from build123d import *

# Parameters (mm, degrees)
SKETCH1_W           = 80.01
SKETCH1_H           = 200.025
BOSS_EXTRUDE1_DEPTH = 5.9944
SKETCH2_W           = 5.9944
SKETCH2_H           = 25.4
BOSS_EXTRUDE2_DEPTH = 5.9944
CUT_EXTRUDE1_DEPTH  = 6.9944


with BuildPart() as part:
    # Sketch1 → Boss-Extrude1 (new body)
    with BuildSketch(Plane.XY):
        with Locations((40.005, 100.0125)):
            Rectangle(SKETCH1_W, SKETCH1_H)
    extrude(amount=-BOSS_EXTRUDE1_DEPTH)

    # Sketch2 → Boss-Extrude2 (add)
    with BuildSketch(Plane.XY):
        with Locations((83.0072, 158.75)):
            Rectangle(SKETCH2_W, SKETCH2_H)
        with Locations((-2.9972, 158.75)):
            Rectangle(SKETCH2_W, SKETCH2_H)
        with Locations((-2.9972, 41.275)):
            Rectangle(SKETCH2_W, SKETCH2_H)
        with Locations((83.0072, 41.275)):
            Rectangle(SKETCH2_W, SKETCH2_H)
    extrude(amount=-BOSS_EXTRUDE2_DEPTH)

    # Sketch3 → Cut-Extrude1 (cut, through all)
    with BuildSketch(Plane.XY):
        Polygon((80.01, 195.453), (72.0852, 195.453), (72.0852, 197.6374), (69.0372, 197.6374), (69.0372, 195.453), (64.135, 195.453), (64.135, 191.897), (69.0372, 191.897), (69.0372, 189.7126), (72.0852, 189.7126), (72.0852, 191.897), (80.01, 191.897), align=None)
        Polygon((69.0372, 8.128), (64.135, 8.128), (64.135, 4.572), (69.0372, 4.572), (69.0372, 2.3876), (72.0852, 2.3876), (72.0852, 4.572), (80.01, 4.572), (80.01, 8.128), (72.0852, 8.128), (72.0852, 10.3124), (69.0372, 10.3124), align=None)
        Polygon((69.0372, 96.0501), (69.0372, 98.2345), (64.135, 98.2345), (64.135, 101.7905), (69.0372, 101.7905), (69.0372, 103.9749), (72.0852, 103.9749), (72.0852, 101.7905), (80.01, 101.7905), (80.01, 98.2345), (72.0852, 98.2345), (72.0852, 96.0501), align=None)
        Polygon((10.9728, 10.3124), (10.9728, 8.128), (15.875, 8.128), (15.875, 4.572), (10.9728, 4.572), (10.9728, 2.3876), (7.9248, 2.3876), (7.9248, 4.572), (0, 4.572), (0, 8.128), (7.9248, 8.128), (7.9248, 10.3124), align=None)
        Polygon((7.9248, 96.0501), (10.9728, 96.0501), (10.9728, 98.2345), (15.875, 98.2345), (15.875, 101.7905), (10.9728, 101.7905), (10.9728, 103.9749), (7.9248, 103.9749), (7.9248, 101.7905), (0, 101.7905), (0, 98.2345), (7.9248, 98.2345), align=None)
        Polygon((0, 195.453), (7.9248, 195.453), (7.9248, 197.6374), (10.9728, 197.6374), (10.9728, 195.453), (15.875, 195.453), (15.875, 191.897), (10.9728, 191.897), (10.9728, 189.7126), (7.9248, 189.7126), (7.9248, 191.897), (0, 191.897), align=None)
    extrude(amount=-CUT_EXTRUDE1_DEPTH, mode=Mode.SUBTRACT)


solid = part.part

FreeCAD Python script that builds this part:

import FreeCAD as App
import Part
import Sketcher

V = App.Vector
Q = App.Units.Quantity


def add_polygon(sketch, points):
    """Adds a closed chain of lines whose ends are joined by coincident constraints."""
    first, n = sketch.GeometryCount, len(points)
    for a, b in zip(points, points[1:] + points[:1]):
        sketch.addGeometry(Part.LineSegment(App.Vector(*a, 0), App.Vector(*b, 0)), False)
    for i in range(n):
        sketch.addConstraint(Sketcher.Constraint("Coincident", first + i, 2, first + (i + 1) % n, 1))

doc = App.newDocument("Part")
body = doc.addObject("PartDesign::Body", "Body")

# Sketch on XY plane
sketch1 = doc.addObject("Sketcher::SketchObject", "Sketch")
body.addObject(sketch1)
sketch1.AttachmentSupport = (doc.XY_Plane, [""])
sketch1.MapMode = "FlatFace"
add_polygon(sketch1, [(0, 200), (0, 0), (80, 0), (80, 200)])  # lines 0-3
sketch1.addConstraint(Sketcher.Constraint("Vertical", 0))
sketch1.addConstraint(Sketcher.Constraint("Horizontal", 1))
sketch1.addConstraint(Sketcher.Constraint("Vertical", 2))
sketch1.addConstraint(Sketcher.Constraint("Horizontal", 3))
sketch1.addConstraint(Sketcher.Constraint("Coincident", 0, 2, -1, 1))
sketch1.addConstraint(Sketcher.Constraint("DistanceX", 1, 1, 1, 2, Q("3.15 in")))
sketch1.addConstraint(Sketcher.Constraint("DistanceY", 0, 2, 0, 1, Q("7.875 in")))
pad1 = doc.addObject("PartDesign::Pad", "Pad")
body.addObject(pad1)
pad1.Profile = sketch1
pad1.Length = Q("0.236 in")
pad1.Reversed = True

# Sketch on XY plane
sketch2 = doc.addObject("Sketcher::SketchObject", "Sketch001")
body.addObject(sketch2)
sketch2.AttachmentSupport = (doc.XY_Plane, [""])
sketch2.MapMode = "FlatFace"
add_polygon(sketch2, [(80, 171), (80, 146), (86, 146), (86, 171)])  # lines 0-3
add_polygon(sketch2, [(-6, 171), (-6, 146), (0, 146), (0, 171)])  # lines 4-7
add_polygon(sketch2, [(-6, 54), (-6, 29), (0, 29), (0, 54)])  # lines 8-11
add_polygon(sketch2, [(80, 54), (80, 29), (86, 29), (86, 54)])  # lines 12-15
sketch2.addConstraint(Sketcher.Constraint("Vertical", 0))
sketch2.addConstraint(Sketcher.Constraint("Horizontal", 1))
sketch2.addConstraint(Sketcher.Constraint("Vertical", 2))
sketch2.addConstraint(Sketcher.Constraint("Horizontal", 3))
sketch2.addConstraint(Sketcher.Constraint("Vertical", 4))
sketch2.addConstraint(Sketcher.Constraint("Horizontal", 5))
sketch2.addConstraint(Sketcher.Constraint("Vertical", 6))
sketch2.addConstraint(Sketcher.Constraint("Horizontal", 7))
sketch2.addConstraint(Sketcher.Constraint("Vertical", 8))
sketch2.addConstraint(Sketcher.Constraint("Horizontal", 9))
sketch2.addConstraint(Sketcher.Constraint("Vertical", 10))
sketch2.addConstraint(Sketcher.Constraint("Horizontal", 11))
sketch2.addConstraint(Sketcher.Constraint("Vertical", 12))
sketch2.addConstraint(Sketcher.Constraint("Horizontal", 13))
sketch2.addConstraint(Sketcher.Constraint("Vertical", 14))
sketch2.addConstraint(Sketcher.Constraint("Horizontal", 15))
sketch2.addConstraint(Sketcher.Constraint("PointOnObject", 5, 2, -2))
sketch2.addConstraint(Sketcher.Constraint("PointOnObject", 9, 2, -2))
sketch2.addConstraint(Sketcher.Constraint("Horizontal", 1, 2, 4, 2))
sketch2.addConstraint(Sketcher.Constraint("Horizontal", 3, 2, 6, 2))
sketch2.addConstraint(Sketcher.Constraint("Horizontal", 9, 2, 12, 2))
sketch2.addConstraint(Sketcher.Constraint("Horizontal", 11, 2, 14, 2))
sketch2.addConstraint(Sketcher.Constraint("Vertical", 7, 2, 8, 2))
sketch2.addConstraint(Sketcher.Constraint("Vertical", 3, 2, 12, 2))
sketch2.addConstraint(Sketcher.Constraint("Vertical", 2, 2, 13, 2))
sketch2.addConstraint(Sketcher.Constraint("Equal", 3, 5))
sketch2.addConstraint(Sketcher.Constraint("Equal", 6, 8))
sketch2.addConstraint(Sketcher.Constraint("DistanceY", 0, 2, 0, 1, Q("1 in")))
sketch2.addConstraint(Sketcher.Constraint("DistanceX", 1, 1, 1, 2, Q("0.236 in")))
sketch2.addConstraint(Sketcher.Constraint("DistanceX", -1, 1, 0, 2, Q("3.15 in")))
sketch2.addConstraint(Sketcher.Constraint("DistanceY", -1, 1, 0, 2, Q("5.75 in")))
sketch2.addConstraint(Sketcher.Constraint("DistanceY", -1, 1, 8, 2, Q("1.125 in")))
pad2 = doc.addObject("PartDesign::Pad", "Pad001")
body.addObject(pad2)
pad2.Profile = sketch2
pad2.Length = Q("0.236 in")
pad2.Reversed = True

# Sketch on XY plane
sketch3 = doc.addObject("Sketcher::SketchObject", "Sketch002")
body.addObject(sketch3)
sketch3.AttachmentSupport = (doc.XY_Plane, [""])
sketch3.MapMode = "FlatFace"
add_polygon(sketch3, [(80, 195.5), (72.1, 195.5), (72.1, 197.6), (69, 197.6), (69, 195.5), (64.1, 195.5), (64.1, 191.9), (69, 191.9), (69, 189.7), (72.1, 189.7), (72.1, 191.9), (80, 191.9)])  # lines 0-11
add_polygon(sketch3, [(69, 8.1), (64.1, 8.1), (64.1, 4.6), (69, 4.6), (69, 2.4), (72.1, 2.4), (72.1, 4.6), (80, 4.6), (80, 8.1), (72.1, 8.1), (72.1, 10.3), (69, 10.3)])  # lines 12-23
add_polygon(sketch3, [(69, 98.2), (69, 96.1), (72.1, 96.1), (72.1, 98.2), (80, 98.2), (80, 101.8), (72.1, 101.8), (72.1, 104), (69, 104), (69, 101.8), (64.1, 101.8), (64.1, 98.2)])  # lines 24-35
add_polygon(sketch3, [(11, 8.1), (11, 10.3), (7.9, 10.3), (7.9, 8.1), (0, 8.1), (0, 4.6), (7.9, 4.6), (7.9, 2.4), (11, 2.4), (11, 4.6), (15.9, 4.6), (15.9, 8.1)])  # lines 36-47
add_polygon(sketch3, [(7.9, 96.1), (11, 96.1), (11, 98.2), (15.9, 98.2), (15.9, 101.8), (11, 101.8), (11, 104), (7.9, 104), (7.9, 101.8), (0, 101.8), (0, 98.2), (7.9, 98.2)])  # lines 48-59
add_polygon(sketch3, [(7.9, 195.5), (0, 195.5), (0, 191.9), (7.9, 191.9), (7.9, 189.7), (11, 189.7), (11, 191.9), (15.9, 191.9), (15.9, 195.5), (11, 195.5), (11, 197.6), (7.9, 197.6)])  # lines 60-71
sketch3.addConstraint(Sketcher.Constraint("Horizontal", 0))
sketch3.addConstraint(Sketcher.Constraint("Vertical", 1))
sketch3.addConstraint(Sketcher.Constraint("Horizontal", 2))
sketch3.addConstraint(Sketcher.Constraint("Vertical", 3))
sketch3.addConstraint(Sketcher.Constraint("Horizontal", 4))
sketch3.addConstraint(Sketcher.Constraint("Vertical", 5))
sketch3.addConstraint(Sketcher.Constraint("Horizontal", 6))
sketch3.addConstraint(Sketcher.Constraint("Vertical", 7))
sketch3.addConstraint(Sketcher.Constraint("Horizontal", 8))
sketch3.addConstraint(Sketcher.Constraint("Vertical", 9))
sketch3.addConstraint(Sketcher.Constraint("Horizontal", 10))
sketch3.addConstraint(Sketcher.Constraint("Vertical", 11))
sketch3.addConstraint(Sketcher.Constraint("Horizontal", 12))
sketch3.addConstraint(Sketcher.Constraint("Vertical", 13))
sketch3.addConstraint(Sketcher.Constraint("Horizontal", 14))
sketch3.addConstraint(Sketcher.Constraint("Vertical", 15))
sketch3.addConstraint(Sketcher.Constraint("Horizontal", 16))
sketch3.addConstraint(Sketcher.Constraint("Vertical", 17))
sketch3.addConstraint(Sketcher.Constraint("Horizontal", 18))
sketch3.addConstraint(Sketcher.Constraint("Vertical", 19))
sketch3.addConstraint(Sketcher.Constraint("Horizontal", 20))
sketch3.addConstraint(Sketcher.Constraint("Vertical", 21))
sketch3.addConstraint(Sketcher.Constraint("Horizontal", 22))
sketch3.addConstraint(Sketcher.Constraint("Vertical", 23))
sketch3.addConstraint(Sketcher.Constraint("Vertical", 24))
sketch3.addConstraint(Sketcher.Constraint("Horizontal", 25))
sketch3.addConstraint(Sketcher.Constraint("Vertical", 26))
sketch3.addConstraint(Sketcher.Constraint("Horizontal", 27))
sketch3.addConstraint(Sketcher.Constraint("Vertical", 28))
sketch3.addConstraint(Sketcher.Constraint("Horizontal", 29))
sketch3.addConstraint(Sketcher.Constraint("Vertical", 30))
sketch3.addConstraint(Sketcher.Constraint("Horizontal", 31))
sketch3.addConstraint(Sketcher.Constraint("Vertical", 32))
sketch3.addConstraint(Sketcher.Constraint("Horizontal", 33))
sketch3.addConstraint(Sketcher.Constraint("Vertical", 34))
sketch3.addConstraint(Sketcher.Constraint("Horizontal", 35))
sketch3.addConstraint(Sketcher.Constraint("Vertical", 36))
sketch3.addConstraint(Sketcher.Constraint("Horizontal", 37))
sketch3.addConstraint(Sketcher.Constraint("Vertical", 38))
sketch3.addConstraint(Sketcher.Constraint("Horizontal", 39))
sketch3.addConstraint(Sketcher.Constraint("Vertical", 40))
sketch3.addConstraint(Sketcher.Constraint("Horizontal", 41))
sketch3.addConstraint(Sketcher.Constraint("Vertical", 42))
sketch3.addConstraint(Sketcher.Constraint("Horizontal", 43))
sketch3.addConstraint(Sketcher.Constraint("Vertical", 44))
sketch3.addConstraint(Sketcher.Constraint("Horizontal", 45))
sketch3.addConstraint(Sketcher.Constraint("Vertical", 46))
sketch3.addConstraint(Sketcher.Constraint("Horizontal", 47))
sketch3.addConstraint(Sketcher.Constraint("Horizontal", 48))
sketch3.addConstraint(Sketcher.Constraint("Vertical", 49))
sketch3.addConstraint(Sketcher.Constraint("Horizontal", 50))
sketch3.addConstraint(Sketcher.Constraint("Vertical", 51))
sketch3.addConstraint(Sketcher.Constraint("Horizontal", 52))
sketch3.addConstraint(Sketcher.Constraint("Vertical", 53))
sketch3.addConstraint(Sketcher.Constraint("Horizontal", 54))
sketch3.addConstraint(Sketcher.Constraint("Vertical", 55))
sketch3.addConstraint(Sketcher.Constraint("Horizontal", 56))
sketch3.addConstraint(Sketcher.Constraint("Vertical", 57))
sketch3.addConstraint(Sketcher.Constraint("Horizontal", 58))
sketch3.addConstraint(Sketcher.Constraint("Vertical", 59))
sketch3.addConstraint(Sketcher.Constraint("Horizontal", 60))
sketch3.addConstraint(Sketcher.Constraint("Vertical", 61))
sketch3.addConstraint(Sketcher.Constraint("Horizontal", 62))
sketch3.addConstraint(Sketcher.Constraint("Vertical", 63))
sketch3.addConstraint(Sketcher.Constraint("Horizontal", 64))
sketch3.addConstraint(Sketcher.Constraint("Vertical", 65))
sketch3.addConstraint(Sketcher.Constraint("Horizontal", 66))
sketch3.addConstraint(Sketcher.Constraint("Vertical", 67))
sketch3.addConstraint(Sketcher.Constraint("Horizontal", 68))
sketch3.addConstraint(Sketcher.Constraint("Vertical", 69))
sketch3.addConstraint(Sketcher.Constraint("Horizontal", 70))
sketch3.addConstraint(Sketcher.Constraint("Vertical", 71))
sketch3.addConstraint(Sketcher.Constraint("PointOnObject", 39, 2, -2))
sketch3.addConstraint(Sketcher.Constraint("PointOnObject", 56, 2, -2))
sketch3.addConstraint(Sketcher.Constraint("PointOnObject", 60, 2, -2))
sketch3.addConstraint(Sketcher.Constraint("Horizontal", 0, 2, 3, 2))
sketch3.addConstraint(Sketcher.Constraint("Horizontal", 6, 2, 9, 2))
sketch3.addConstraint(Sketcher.Constraint("Horizontal", 14, 2, 17, 2))
sketch3.addConstraint(Sketcher.Constraint("Horizontal", 12, 2, 19, 2))
sketch3.addConstraint(Sketcher.Constraint("Horizontal", 29, 2, 32, 2))
sketch3.addConstraint(Sketcher.Constraint("Horizontal", 27, 2, 34, 2))
sketch3.addConstraint(Sketcher.Constraint("Horizontal", 22, 2, 36, 2))
sketch3.addConstraint(Sketcher.Constraint("Horizontal", 23, 2, 38, 2))
sketch3.addConstraint(Sketcher.Constraint("Horizontal", 18, 2, 40, 2))
sketch3.addConstraint(Sketcher.Constraint("Horizontal", 16, 2, 42, 2))
sketch3.addConstraint(Sketcher.Constraint("Horizontal", 41, 2, 44, 2))
sketch3.addConstraint(Sketcher.Constraint("Horizontal", 39, 2, 46, 2))
sketch3.addConstraint(Sketcher.Constraint("Horizontal", 25, 2, 48, 2))
sketch3.addConstraint(Sketcher.Constraint("Horizontal", 35, 2, 49, 2))
sketch3.addConstraint(Sketcher.Constraint("Horizontal", 33, 2, 51, 2))
sketch3.addConstraint(Sketcher.Constraint("Horizontal", 31, 2, 53, 2))
sketch3.addConstraint(Sketcher.Constraint("Horizontal", 52, 2, 55, 2))
sketch3.addConstraint(Sketcher.Constraint("Horizontal", 50, 2, 57, 2))
sketch3.addConstraint(Sketcher.Constraint("Horizontal", 11, 2, 60, 2))
sketch3.addConstraint(Sketcher.Constraint("Horizontal", 10, 2, 61, 2))
sketch3.addConstraint(Sketcher.Constraint("Horizontal", 8, 2, 63, 2))
sketch3.addConstraint(Sketcher.Constraint("Horizontal", 62, 2, 65, 2))
sketch3.addConstraint(Sketcher.Constraint("Horizontal", 60, 2, 67, 2))
sketch3.addConstraint(Sketcher.Constraint("Horizontal", 2, 2, 69, 2))
sketch3.addConstraint(Sketcher.Constraint("Vertical", 3, 2, 6, 2))
sketch3.addConstraint(Sketcher.Constraint("Vertical", 1, 2, 8, 2))
sketch3.addConstraint(Sketcher.Constraint("Vertical", 5, 2, 12, 2))
sketch3.addConstraint(Sketcher.Constraint("Vertical", 7, 2, 14, 2))
sketch3.addConstraint(Sketcher.Constraint("Vertical", 9, 2, 16, 2))
sketch3.addConstraint(Sketcher.Constraint("Vertical", 11, 2, 18, 2))
sketch3.addConstraint(Sketcher.Constraint("Vertical", 17, 2, 20, 2))
sketch3.addConstraint(Sketcher.Constraint("Vertical", 15, 2, 22, 2))
sketch3.addConstraint(Sketcher.Constraint("Vertical", 23, 2, 24, 2))
sketch3.addConstraint(Sketcher.Constraint("Vertical", 21, 2, 25, 2))
sketch3.addConstraint(Sketcher.Constraint("Vertical", 19, 2, 27, 2))
sketch3.addConstraint(Sketcher.Constraint("Vertical", 26, 2, 29, 2))
sketch3.addConstraint(Sketcher.Constraint("Vertical", 24, 2, 31, 2))
sketch3.addConstraint(Sketcher.Constraint("Vertical", 13, 2, 33, 2))
sketch3.addConstraint(Sketcher.Constraint("Vertical", 38, 2, 41, 2))
sketch3.addConstraint(Sketcher.Constraint("Vertical", 36, 2, 43, 2))
sketch3.addConstraint(Sketcher.Constraint("Vertical", 47, 2, 48, 2))
sketch3.addConstraint(Sketcher.Constraint("Vertical", 46, 2, 50, 2))
sketch3.addConstraint(Sketcher.Constraint("Vertical", 49, 2, 52, 2))
sketch3.addConstraint(Sketcher.Constraint("Vertical", 42, 2, 54, 2))
sketch3.addConstraint(Sketcher.Constraint("Vertical", 55, 2, 58, 2))
sketch3.addConstraint(Sketcher.Constraint("Vertical", 59, 2, 62, 2))
sketch3.addConstraint(Sketcher.Constraint("Vertical", 53, 2, 64, 2))
sketch3.addConstraint(Sketcher.Constraint("Vertical", 51, 2, 66, 2))
sketch3.addConstraint(Sketcher.Constraint("Vertical", 65, 2, 68, 2))
sketch3.addConstraint(Sketcher.Constraint("Vertical", 63, 2, 70, 2))
sketch3.addConstraint(Sketcher.Constraint("Equal", 31, 37))
sketch3.addConstraint(Sketcher.Constraint("Equal", 29, 39))
sketch3.addConstraint(Sketcher.Constraint("Equal", 35, 45))
sketch3.addConstraint(Sketcher.Constraint("Equal", 3, 7))
sketch3.addConstraint(Sketcher.Constraint("Equal", 11, 13))
sketch3.addConstraint(Sketcher.Constraint("Equal", 9, 15))
sketch3.addConstraint(Sketcher.Constraint("Equal", 17, 21))
sketch3.addConstraint(Sketcher.Constraint("Equal", 23, 24))
sketch3.addConstraint(Sketcher.Constraint("Equal", 19, 28))
sketch3.addConstraint(Sketcher.Constraint("Equal", 26, 30))
sketch3.addConstraint(Sketcher.Constraint("DistanceX", 2, 2, 2, 1, Q("0.12 in")))
sketch3.addConstraint(Sketcher.Constraint("DistanceY", 5, 2, 5, 1, Q("0.14 in")))
sketch3.addConstraint(Sketcher.Constraint("DistanceX", 0, 2, 0, 1, Q("0.312 in")))
sketch3.addConstraint(Sketcher.Constraint("DistanceX", 4, 2, 4, 1, Q("0.193 in")))
sketch3.addConstraint(Sketcher.Constraint("DistanceY", 1, 1, 1, 2, Q("0.086 in")))
sketch3.addConstraint(Sketcher.Constraint("DistanceX", -1, 1, 10, 2, Q("3.15 in")))
sketch3.addConstraint(Sketcher.Constraint("DistanceY", -1, 1, 12, 2, Q("0.32 in")))
sketch3.addConstraint(Sketcher.Constraint("DistanceY", -1, 1, 0, 2, Q("7.695 in")))
sketch3.addConstraint(Sketcher.Constraint("DistanceY", -1, 1, 24, 2, Q("3.7815 in")))
pocket1 = doc.addObject("PartDesign::Pocket", "Pocket")
body.addObject(pocket1)
pocket1.Profile = sketch3
pocket1.Type = "ThroughAll"

doc.recompute()
